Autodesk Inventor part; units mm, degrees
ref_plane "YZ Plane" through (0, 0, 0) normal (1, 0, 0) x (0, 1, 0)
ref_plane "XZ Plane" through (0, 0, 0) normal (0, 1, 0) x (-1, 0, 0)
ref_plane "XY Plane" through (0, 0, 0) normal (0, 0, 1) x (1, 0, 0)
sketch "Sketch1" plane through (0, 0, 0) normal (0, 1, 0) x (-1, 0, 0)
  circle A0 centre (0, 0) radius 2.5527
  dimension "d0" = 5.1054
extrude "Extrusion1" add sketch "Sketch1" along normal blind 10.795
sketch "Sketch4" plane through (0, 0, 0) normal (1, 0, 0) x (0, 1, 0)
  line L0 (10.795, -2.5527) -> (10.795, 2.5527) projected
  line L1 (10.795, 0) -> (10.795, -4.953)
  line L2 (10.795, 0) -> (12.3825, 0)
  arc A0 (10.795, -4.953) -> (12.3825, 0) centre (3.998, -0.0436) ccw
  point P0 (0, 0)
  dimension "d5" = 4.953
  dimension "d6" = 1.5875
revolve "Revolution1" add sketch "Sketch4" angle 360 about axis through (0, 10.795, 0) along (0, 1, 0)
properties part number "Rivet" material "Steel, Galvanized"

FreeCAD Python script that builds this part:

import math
import FreeCAD as App
import Part
import Sketcher
from FreeCAD import Vector
Q = App.Units.Quantity

doc = App.newDocument("Part")
params = doc.addObject("Spreadsheet::Sheet", "Params")
for row, (alias, value) in enumerate([
    ("sketch1_diameter", "0.201 in"),
    ("pad1_length", "0.425 in"),
    ("sketch2_width", "0.0625 in"),
    ("sketch2_height", "0.195 in"),
    ("revolution_angle", "360 deg"),
], start=1):
    params.set(f"A{row}", alias)
    params.set(f"B{row}", "=" + value)
    params.setAlias(f"B{row}", alias)

body = doc.addObject("PartDesign::Body", "Body")

# Sketch on XZ plane
sketch1 = body.newObject("Sketcher::SketchObject", "Sketch")
sketch1.AttachmentSupport = (doc.getObject("XZ_Plane"), [""])
sketch1.MapMode = "FlatFace"
sketch1.addGeometry(Part.Circle(Vector(0, 0, 0), Vector(0, 0, 1), 2.6), False)
sketch1.addConstraint([
    Sketcher.Constraint("Coincident", 0, 3, -1, 1),
    Sketcher.Constraint("Diameter", 0, Q("0.201 in")),
])
sketch1.setExpression("Constraints[1]", "Params.sketch1_diameter")
pad1 = body.newObject("PartDesign::Pad", "Pad")
pad1.Profile = sketch1
pad1.setExpression("Length", "Params.pad1_length")
pad1.Reversed = True

# Sketch on YZ plane
sketch2 = body.newObject("Sketcher::SketchObject", "Sketch001")
sketch2.AttachmentSupport = (doc.getObject("YZ_Plane"), [""])
sketch2.MapMode = "FlatFace"
sketch2.addGeometry([
    Part.LineSegment(Vector(10.8, 0, 0), Vector(10.8, -5, 0)),
    Part.ArcOfCircle(Part.Circle(Vector(4, 0, 0), Vector(0, 0, 1), 8.4), math.radians(-36), math.radians(0)),
    Part.LineSegment(Vector(12.4, 0, 0), Vector(10.8, 0, 0)),
], False)
sketch2.addConstraint([
    Sketcher.Constraint("Coincident", 0, 2, 1, 1),
    Sketcher.Constraint("Coincident", 1, 2, 2, 1),
    Sketcher.Constraint("Coincident", 2, 2, 0, 1),
    Sketcher.Constraint("Vertical", 0),
    Sketcher.Constraint("Horizontal", 2),
    Sketcher.Constraint("PointOnObject", 1, 2, -1),
    Sketcher.Constraint("DistanceX", 2, 2, 2, 1, Q("0.0625 in")),
    Sketcher.Constraint("DistanceY", 0, 2, 0, 1, Q("0.195 in")),
    Sketcher.Constraint("Radius", 1, Q("0.3301 in")),
    Sketcher.Constraint("DistanceX", -1, 1, 0, 2, Q("0.425 in")),
])
sketch2.setExpression("Constraints[6]", "Params.sketch2_width")
sketch2.setExpression("Constraints[7]", "Params.sketch2_height")
revolution = body.newObject("PartDesign::Revolution", "Revolution")
revolution.Profile = sketch2
revolution.ReferenceAxis = (sketch2, ["H_Axis"])
revolution.setExpression("Angle", "Params.revolution_angle")

doc.recompute()
